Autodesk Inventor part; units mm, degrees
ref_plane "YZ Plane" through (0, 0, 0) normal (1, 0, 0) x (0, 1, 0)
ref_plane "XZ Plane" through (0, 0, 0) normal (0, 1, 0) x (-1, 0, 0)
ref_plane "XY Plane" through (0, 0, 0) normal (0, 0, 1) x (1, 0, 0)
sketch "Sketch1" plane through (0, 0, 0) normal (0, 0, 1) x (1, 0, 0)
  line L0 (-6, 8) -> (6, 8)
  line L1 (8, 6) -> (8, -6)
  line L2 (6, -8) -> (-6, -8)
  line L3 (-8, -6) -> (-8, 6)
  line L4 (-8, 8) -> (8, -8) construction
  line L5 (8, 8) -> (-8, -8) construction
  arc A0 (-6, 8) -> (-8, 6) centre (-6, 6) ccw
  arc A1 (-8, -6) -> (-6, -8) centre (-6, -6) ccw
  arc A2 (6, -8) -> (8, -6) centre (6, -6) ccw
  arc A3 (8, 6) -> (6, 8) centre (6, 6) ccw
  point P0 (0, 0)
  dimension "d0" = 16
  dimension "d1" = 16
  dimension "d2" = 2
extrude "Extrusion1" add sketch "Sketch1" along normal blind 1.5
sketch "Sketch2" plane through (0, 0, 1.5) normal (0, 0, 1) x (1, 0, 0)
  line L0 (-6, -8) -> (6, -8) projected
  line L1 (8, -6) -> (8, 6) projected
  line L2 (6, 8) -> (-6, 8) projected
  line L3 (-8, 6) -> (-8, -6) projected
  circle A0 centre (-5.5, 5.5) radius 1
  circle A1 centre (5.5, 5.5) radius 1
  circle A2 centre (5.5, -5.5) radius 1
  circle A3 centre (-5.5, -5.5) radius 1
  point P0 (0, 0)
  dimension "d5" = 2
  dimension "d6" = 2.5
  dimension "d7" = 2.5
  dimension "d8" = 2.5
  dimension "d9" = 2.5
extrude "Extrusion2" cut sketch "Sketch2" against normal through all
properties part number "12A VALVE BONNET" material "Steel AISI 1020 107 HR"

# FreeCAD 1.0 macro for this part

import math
import FreeCAD as App
import Part
import Sketcher

V = App.Vector
Q = App.Units.Quantity

doc = App.newDocument("Part")
params = doc.addObject("Spreadsheet::Sheet", "Params")
for row, (alias, value) in enumerate([
    ("sketch1_radius", "2 mm"),
    ("sketch1_width", "12 mm"),
    ("pad1_length", "1.5 mm"),
    ("sketch2_diameter", "2 mm"),
], start=1):
    params.set(f"A{row}", alias)
    params.set(f"B{row}", "=" + value)
    params.setAlias(f"B{row}", alias)

body = doc.addObject("PartDesign::Body", "Body")

# Sketch on XY plane
sketch1 = body.newObject("Sketcher::SketchObject", "Sketch")
sketch1.AttachmentSupport = (doc.getObject("XY_Plane"), [""])
sketch1.MapMode = "FlatFace"
sketch1.addGeometry([
    Part.LineSegment(V(6, 8, 0), V(-6, 8, 0)),  # 0
    Part.ArcOfCircle(Part.Circle(V(-6, 6, 0), V(0, 0, 1), 2), math.radians(90), math.radians(180)),  # 1
    Part.LineSegment(V(-8, 6, 0), V(-8, -6, 0)),  # 2
    Part.ArcOfCircle(Part.Circle(V(-6, -6, 0), V(0, 0, 1), 2), math.radians(180), math.radians(270)),  # 3
    Part.LineSegment(V(-6, -8, 0), V(6, -8, 0)),  # 4
    Part.ArcOfCircle(Part.Circle(V(6, -6, 0), V(0, 0, 1), 2), math.radians(-90), math.radians(0)),  # 5
    Part.LineSegment(V(8, -6, 0), V(8, 6, 0)),  # 6
    Part.ArcOfCircle(Part.Circle(V(6, 6, 0), V(0, 0, 1), 2), math.radians(0), math.radians(90)),  # 7
], False)
sketch1.addConstraint([
    Sketcher.Constraint("Tangent", 0, 2, 1, 1),
    Sketcher.Constraint("Tangent", 1, 2, 2, 1),
    Sketcher.Constraint("Tangent", 2, 2, 3, 1),
    Sketcher.Constraint("Tangent", 3, 2, 4, 1),
    Sketcher.Constraint("Tangent", 4, 2, 5, 1),
    Sketcher.Constraint("Tangent", 5, 2, 6, 1),
    Sketcher.Constraint("Tangent", 6, 2, 7, 1),
    Sketcher.Constraint("Tangent", 7, 2, 0, 1),
    Sketcher.Constraint("Horizontal", 0),
    Sketcher.Constraint("Vertical", 2),
    Sketcher.Constraint("Horizontal", 4),
    Sketcher.Constraint("Vertical", 6),
    Sketcher.Constraint("Equal", 1, 3),
    Sketcher.Constraint("Equal", 3, 5),
    Sketcher.Constraint("Equal", 5, 7),
    Sketcher.Constraint("Symmetric", 1, 3, 5, 3, -1, 1),
    Sketcher.Constraint("Equal", 4, 2),
    Sketcher.Constraint("Radius", 1, Q("2 mm")),
    Sketcher.Constraint("DistanceX", 0, 2, 0, 1, Q("12 mm")),
])
sketch1.setExpression("Constraints[17]", "Params.sketch1_radius")
sketch1.setExpression("Constraints[18]", "Params.sketch1_width")
pad1 = body.newObject("PartDesign::Pad", "Pad")
pad1.Profile = sketch1
pad1.setExpression("Length", "Params.pad1_length")

# Sketch on XY plane
sketch2 = body.newObject("Sketcher::SketchObject", "Sketch001")
sketch2.AttachmentSupport = (doc.getObject("XY_Plane"), [""])
sketch2.MapMode = "FlatFace"
sketch2.AttachmentOffset = App.Placement(V(0, 0, 1.5), App.Rotation())
sketch2.addGeometry([
    Part.Circle(V(-5.5, 5.5, 0), V(0, 0, 1), 1),
    Part.Circle(V(5.5, 5.5, 0), V(0, 0, 1), 1),
    Part.Circle(V(5.5, -5.5, 0), V(0, 0, 1), 1),
    Part.Circle(V(-5.5, -5.5, 0), V(0, 0, 1), 1),
], False)
sketch2.addConstraint([
    Sketcher.Constraint("Equal", 0, 1),
    Sketcher.Constraint("Equal", 1, 2),
    Sketcher.Constraint("Equal", 2, 3),
    Sketcher.Constraint("Symmetric", 0, 3, 2, 3, -1, 1),
    Sketcher.Constraint("Symmetric", 1, 3, 3, 3, -1, 1),
    Sketcher.Constraint("Symmetric", 0, 3, 1, 3, -2),
    Sketcher.Constraint("Diameter", 0, Q("2 mm")),
    Sketcher.Constraint("DistanceX", 0, 3, 1, 3, Q("11 mm")),
    Sketcher.Constraint("DistanceY", 2, 3, 1, 3, Q("11 mm")),
])
sketch2.setExpression("Constraints[6]", "Params.sketch2_diameter")
pocket1 = body.newObject("PartDesign::Pocket", "Pocket")
pocket1.Profile = sketch2
pocket1.Type = "ThroughAll"

doc.recompute()
